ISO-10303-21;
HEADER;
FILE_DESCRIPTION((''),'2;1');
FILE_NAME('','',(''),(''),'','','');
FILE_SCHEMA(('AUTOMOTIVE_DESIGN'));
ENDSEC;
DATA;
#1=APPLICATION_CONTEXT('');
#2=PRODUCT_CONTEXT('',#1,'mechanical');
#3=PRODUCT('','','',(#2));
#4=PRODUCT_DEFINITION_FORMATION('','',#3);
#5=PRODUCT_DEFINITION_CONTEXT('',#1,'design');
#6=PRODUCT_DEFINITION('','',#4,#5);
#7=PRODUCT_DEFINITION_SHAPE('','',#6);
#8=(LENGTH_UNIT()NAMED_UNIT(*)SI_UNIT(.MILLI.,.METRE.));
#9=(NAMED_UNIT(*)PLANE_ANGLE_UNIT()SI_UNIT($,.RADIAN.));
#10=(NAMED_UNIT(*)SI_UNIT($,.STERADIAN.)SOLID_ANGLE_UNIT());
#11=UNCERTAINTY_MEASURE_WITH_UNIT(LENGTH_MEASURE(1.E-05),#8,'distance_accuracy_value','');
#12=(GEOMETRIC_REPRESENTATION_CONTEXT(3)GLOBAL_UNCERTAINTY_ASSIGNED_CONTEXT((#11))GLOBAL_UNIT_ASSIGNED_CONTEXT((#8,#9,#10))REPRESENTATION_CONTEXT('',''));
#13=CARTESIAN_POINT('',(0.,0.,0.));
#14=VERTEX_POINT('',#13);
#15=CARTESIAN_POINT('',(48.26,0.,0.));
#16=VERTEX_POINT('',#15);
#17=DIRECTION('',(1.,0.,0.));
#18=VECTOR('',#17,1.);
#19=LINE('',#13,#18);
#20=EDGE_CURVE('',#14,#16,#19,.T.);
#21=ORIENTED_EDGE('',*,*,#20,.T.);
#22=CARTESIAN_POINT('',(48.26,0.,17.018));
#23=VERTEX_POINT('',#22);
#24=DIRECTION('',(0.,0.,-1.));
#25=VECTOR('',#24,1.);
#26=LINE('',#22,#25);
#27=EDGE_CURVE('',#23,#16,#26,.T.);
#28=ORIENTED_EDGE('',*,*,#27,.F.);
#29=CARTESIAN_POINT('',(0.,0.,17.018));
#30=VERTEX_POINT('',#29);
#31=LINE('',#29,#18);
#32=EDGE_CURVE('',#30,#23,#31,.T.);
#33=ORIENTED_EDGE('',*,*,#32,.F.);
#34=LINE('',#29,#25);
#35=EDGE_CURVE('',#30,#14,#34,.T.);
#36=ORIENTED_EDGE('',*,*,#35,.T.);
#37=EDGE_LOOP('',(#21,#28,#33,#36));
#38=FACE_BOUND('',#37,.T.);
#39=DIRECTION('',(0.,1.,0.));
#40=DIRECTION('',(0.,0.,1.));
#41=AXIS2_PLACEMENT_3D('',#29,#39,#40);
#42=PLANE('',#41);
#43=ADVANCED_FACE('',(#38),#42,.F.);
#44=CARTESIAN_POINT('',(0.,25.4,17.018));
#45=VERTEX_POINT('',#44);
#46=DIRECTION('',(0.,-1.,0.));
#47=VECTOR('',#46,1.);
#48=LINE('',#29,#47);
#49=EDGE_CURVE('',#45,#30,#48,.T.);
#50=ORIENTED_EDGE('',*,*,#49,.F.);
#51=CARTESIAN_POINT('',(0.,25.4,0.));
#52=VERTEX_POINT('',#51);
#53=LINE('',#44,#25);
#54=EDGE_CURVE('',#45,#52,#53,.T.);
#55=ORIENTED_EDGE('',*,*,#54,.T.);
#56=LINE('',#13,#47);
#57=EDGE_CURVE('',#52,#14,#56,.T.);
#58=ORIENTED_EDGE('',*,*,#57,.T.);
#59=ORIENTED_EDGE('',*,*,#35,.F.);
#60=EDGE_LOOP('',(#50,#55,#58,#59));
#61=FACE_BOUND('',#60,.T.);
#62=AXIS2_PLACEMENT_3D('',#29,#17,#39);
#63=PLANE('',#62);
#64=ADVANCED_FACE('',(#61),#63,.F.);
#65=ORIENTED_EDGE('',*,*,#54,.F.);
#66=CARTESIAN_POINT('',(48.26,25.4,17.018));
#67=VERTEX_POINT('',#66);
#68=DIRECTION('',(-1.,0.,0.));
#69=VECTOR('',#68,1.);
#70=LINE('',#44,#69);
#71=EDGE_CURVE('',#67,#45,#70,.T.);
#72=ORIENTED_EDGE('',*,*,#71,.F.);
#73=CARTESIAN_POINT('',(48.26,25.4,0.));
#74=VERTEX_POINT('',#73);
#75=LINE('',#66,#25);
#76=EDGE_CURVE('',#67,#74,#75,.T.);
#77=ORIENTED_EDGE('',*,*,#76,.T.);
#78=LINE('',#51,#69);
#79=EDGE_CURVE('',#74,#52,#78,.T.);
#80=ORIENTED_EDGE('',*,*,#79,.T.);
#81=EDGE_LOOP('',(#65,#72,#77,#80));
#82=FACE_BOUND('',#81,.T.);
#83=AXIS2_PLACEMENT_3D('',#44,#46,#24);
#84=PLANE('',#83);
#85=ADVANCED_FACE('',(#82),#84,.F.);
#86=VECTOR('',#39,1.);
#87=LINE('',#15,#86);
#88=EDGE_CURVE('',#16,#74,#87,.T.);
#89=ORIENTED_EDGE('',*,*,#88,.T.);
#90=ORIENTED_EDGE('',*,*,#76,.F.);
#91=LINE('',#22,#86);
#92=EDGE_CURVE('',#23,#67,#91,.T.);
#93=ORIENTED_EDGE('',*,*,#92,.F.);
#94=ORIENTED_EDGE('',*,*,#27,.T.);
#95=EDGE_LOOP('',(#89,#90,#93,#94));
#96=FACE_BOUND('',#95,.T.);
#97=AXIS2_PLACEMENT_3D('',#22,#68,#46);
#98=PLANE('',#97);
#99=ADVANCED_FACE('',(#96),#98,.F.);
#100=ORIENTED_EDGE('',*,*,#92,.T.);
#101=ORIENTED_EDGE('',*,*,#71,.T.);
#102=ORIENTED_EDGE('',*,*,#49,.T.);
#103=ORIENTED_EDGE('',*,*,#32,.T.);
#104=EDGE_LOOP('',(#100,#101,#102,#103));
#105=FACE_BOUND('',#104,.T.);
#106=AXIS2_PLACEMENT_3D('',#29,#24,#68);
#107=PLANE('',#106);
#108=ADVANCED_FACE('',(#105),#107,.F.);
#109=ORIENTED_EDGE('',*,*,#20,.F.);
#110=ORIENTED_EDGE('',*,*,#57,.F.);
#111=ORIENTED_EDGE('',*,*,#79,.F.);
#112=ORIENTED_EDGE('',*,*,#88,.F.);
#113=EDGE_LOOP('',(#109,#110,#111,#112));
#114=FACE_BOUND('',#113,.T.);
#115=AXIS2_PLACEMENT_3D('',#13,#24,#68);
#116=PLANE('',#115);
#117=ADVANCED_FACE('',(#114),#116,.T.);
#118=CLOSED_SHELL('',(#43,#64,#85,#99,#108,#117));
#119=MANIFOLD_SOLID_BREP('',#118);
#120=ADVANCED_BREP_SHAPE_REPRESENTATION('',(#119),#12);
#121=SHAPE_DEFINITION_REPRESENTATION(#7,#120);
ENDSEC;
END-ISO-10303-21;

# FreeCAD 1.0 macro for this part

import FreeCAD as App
import Part
import Sketcher
from FreeCAD import Vector
Q = App.Units.Quantity


def add_polygon(sketch, points):
    """Adds a closed chain of lines whose ends are joined by coincident constraints."""
    first, n = sketch.GeometryCount, len(points)
    for a, b in zip(points, points[1:] + points[:1]):
        sketch.addGeometry(Part.LineSegment(App.Vector(*a, 0), App.Vector(*b, 0)), False)
    for i in range(n):
        sketch.addConstraint(Sketcher.Constraint("Coincident", first + i, 2, first + (i + 1) % n, 1))

doc = App.newDocument("Part")
body = doc.addObject("PartDesign::Body", "Body")

sketch1 = body.newObject("Sketcher::SketchObject", "Sketch")
sketch1.AttachmentSupport = (doc.getObject("XY_Plane"), [""])
sketch1.MapMode = "FlatFace"
add_polygon(sketch1, [(0, 25), (0, 0), (48, 0), (48, 25)])
sketch1.addConstraint([
    Sketcher.Constraint("Vertical", 0),
    Sketcher.Constraint("Horizontal", 1),
    Sketcher.Constraint("Vertical", 2),
    Sketcher.Constraint("Horizontal", 3),
    Sketcher.Constraint("Coincident", 0, 2, -1, 1),
    Sketcher.Constraint("DistanceY", 0, 2, 0, 1, Q("1 in")),
    Sketcher.Constraint("DistanceX", 1, 1, 1, 2, Q("1.9 in")),
])
pad1 = body.newObject("PartDesign::Pad", "Pad")
pad1.Profile = sketch1
pad1.Length = Q("0.67 in")

doc.recompute()
